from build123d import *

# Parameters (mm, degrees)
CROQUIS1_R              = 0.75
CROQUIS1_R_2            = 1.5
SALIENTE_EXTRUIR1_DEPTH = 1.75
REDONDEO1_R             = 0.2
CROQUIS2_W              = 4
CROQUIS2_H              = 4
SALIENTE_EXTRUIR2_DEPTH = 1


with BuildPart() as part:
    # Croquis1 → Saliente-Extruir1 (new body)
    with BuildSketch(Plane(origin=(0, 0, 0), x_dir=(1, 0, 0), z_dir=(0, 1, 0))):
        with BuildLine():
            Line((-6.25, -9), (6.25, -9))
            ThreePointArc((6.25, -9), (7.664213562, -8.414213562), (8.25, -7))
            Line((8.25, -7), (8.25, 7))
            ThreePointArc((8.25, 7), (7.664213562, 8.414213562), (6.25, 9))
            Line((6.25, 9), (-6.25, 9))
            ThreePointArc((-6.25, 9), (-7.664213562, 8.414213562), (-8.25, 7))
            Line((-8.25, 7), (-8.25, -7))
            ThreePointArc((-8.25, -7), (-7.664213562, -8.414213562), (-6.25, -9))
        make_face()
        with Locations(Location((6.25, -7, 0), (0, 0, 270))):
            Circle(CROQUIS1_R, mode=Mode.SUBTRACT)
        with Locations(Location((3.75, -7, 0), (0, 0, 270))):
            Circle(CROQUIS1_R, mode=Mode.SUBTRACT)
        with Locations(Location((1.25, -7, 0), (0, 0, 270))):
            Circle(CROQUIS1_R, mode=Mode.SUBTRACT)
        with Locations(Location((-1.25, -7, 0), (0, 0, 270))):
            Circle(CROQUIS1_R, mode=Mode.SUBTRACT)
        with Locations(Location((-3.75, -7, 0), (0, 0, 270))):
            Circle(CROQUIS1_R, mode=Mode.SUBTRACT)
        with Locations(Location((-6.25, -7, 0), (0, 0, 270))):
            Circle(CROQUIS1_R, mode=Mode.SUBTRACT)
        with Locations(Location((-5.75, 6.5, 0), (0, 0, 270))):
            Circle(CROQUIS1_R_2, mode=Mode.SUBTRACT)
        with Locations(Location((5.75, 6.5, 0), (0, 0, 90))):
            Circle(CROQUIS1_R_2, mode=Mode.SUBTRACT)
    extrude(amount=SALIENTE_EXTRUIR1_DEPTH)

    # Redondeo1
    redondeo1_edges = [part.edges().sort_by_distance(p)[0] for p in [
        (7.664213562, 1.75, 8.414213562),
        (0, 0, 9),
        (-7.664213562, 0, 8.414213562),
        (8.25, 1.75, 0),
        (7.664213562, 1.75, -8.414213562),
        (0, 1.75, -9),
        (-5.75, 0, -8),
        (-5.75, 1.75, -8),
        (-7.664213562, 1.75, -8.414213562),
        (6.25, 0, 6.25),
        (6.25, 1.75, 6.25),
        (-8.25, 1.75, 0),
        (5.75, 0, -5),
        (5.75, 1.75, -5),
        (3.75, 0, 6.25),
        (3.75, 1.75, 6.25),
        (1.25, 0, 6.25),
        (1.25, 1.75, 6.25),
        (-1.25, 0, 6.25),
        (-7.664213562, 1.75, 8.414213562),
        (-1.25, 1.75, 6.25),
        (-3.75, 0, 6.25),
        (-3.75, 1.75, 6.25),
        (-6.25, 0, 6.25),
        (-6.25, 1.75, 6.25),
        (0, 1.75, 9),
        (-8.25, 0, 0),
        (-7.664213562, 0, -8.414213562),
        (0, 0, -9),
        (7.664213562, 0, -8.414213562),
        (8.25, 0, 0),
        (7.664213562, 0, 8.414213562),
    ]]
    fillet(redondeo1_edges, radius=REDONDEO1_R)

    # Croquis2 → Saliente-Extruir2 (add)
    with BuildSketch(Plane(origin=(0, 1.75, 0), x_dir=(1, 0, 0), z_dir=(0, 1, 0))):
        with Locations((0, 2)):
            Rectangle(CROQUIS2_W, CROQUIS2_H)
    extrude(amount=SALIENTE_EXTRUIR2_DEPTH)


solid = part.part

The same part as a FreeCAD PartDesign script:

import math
import FreeCAD as App
import Part
import Sketcher
from FreeCAD import Vector


def edges_at(feature, points):
    """Names of the edges that pass closest to the given points."""
    edges = feature.Shape.Edges
    near = lambda p: min(range(len(edges)), key=lambda i: edges[i].distToShape(Part.Vertex(*p))[0])
    return sorted({f"Edge{near(p) + 1}" for p in points})


def add_polygon(sketch, points):
    """Adds a closed chain of lines whose ends are joined by coincident constraints."""
    first, n = sketch.GeometryCount, len(points)
    for a, b in zip(points, points[1:] + points[:1]):
        sketch.addGeometry(Part.LineSegment(App.Vector(*a, 0), App.Vector(*b, 0)), False)
    for i in range(n):
        sketch.addConstraint(Sketcher.Constraint("Coincident", first + i, 2, first + (i + 1) % n, 1))

doc = App.newDocument("Part")
params = doc.addObject("Spreadsheet::Sheet", "Params")
for row, (alias, value) in enumerate([
    ("sketch1_diameter", "3 mm"),
    ("sketch1_radius", "2 mm"),
    ("sketch1_diameter2", "1.5 mm"),
    ("sketch1_height", "14 mm"),
    ("sketch1_width", "12.5 mm"),
    ("pad1_length", "1.75 mm"),
    ("fillet_radius", "0.2 mm"),
    ("sketch2_width", "4 mm"),
    ("pad2_length", "1 mm"),
], start=1):
    params.set(f"A{row}", alias)
    params.set(f"B{row}", "=" + value)
    params.setAlias(f"B{row}", alias)

body = doc.addObject("PartDesign::Body", "Body")

# Sketch on XZ plane
sketch1 = doc.addObject("Sketcher::SketchObject", "Sketch")
body.addObject(sketch1)
sketch1.AttachmentSupport = (doc.XZ_Plane, [""])
sketch1.MapMode = "FlatFace"
sketch1.addGeometry([
    Part.LineSegment(Vector(-6.25, 9, 0), Vector(6.25, 9, 0)),  # 0
    Part.ArcOfCircle(Part.Circle(Vector(6.25, 7, 0), Vector(0, 0, 1), 2), math.radians(0), math.radians(90)),  # 1
    Part.LineSegment(Vector(8.25, 7, 0), Vector(8.25, -7, 0)),  # 2
    Part.ArcOfCircle(Part.Circle(Vector(6.25, -7, 0), Vector(0, 0, 1), 2), math.radians(-90), math.radians(0)),  # 3
    Part.LineSegment(Vector(6.25, -9, 0), Vector(-6.25, -9, 0)),  # 4
    Part.ArcOfCircle(Part.Circle(Vector(-6.25, -7, 0), Vector(0, 0, 1), 2), math.radians(-180), math.radians(-90)),  # 5
    Part.LineSegment(Vector(-8.25, -7, 0), Vector(-8.25, 7, 0)),  # 6
    Part.ArcOfCircle(Part.Circle(Vector(-6.25, 7, 0), Vector(0, 0, 1), 2), math.radians(90), math.radians(180)),  # 7
    Part.Circle(Vector(-6.25, 7, 0), Vector(0, 0, 1), 0.75),  # 8
    Part.Circle(Vector(-3.75, 7, 0), Vector(0, 0, 1), 0.75),  # 9
    Part.Circle(Vector(-1.25, 7, 0), Vector(0, 0, 1), 0.75),  # 10
    Part.Circle(Vector(1.25, 7, 0), Vector(0, 0, 1), 0.75),  # 11
    Part.Circle(Vector(3.75, 7, 0), Vector(0, 0, 1), 0.75),  # 12
    Part.Circle(Vector(6.25, 7, 0), Vector(0, 0, 1), 0.75),  # 13
    Part.Circle(Vector(-5.75, -6.5, 0), Vector(0, 0, 1), 1.5),  # 14
    Part.Circle(Vector(5.75, -6.5, 0), Vector(0, 0, 1), 1.5),  # 15
], False)
sketch1.addConstraint([
    Sketcher.Constraint("Tangent", 0, 2, 1, 2),
    Sketcher.Constraint("Tangent", 1, 1, 2, 1),
    Sketcher.Constraint("Tangent", 2, 2, 3, 2),
    Sketcher.Constraint("Tangent", 3, 1, 4, 1),
    Sketcher.Constraint("Tangent", 4, 2, 5, 2),
    Sketcher.Constraint("Tangent", 5, 1, 6, 1),
    Sketcher.Constraint("Tangent", 6, 2, 7, 2),
    Sketcher.Constraint("Tangent", 7, 1, 0, 1),
    Sketcher.Constraint("Horizontal", 0),
    Sketcher.Constraint("Vertical", 2),
    Sketcher.Constraint("Horizontal", 4),
    Sketcher.Constraint("Vertical", 6),
    Sketcher.Constraint("Coincident", 8, 3, 7, 3),
    Sketcher.Constraint("Coincident", 13, 3, 1, 3),
    Sketcher.Constraint("Equal", 1, 3),
    Sketcher.Constraint("Equal", 3, 5),
    Sketcher.Constraint("Equal", 5, 7),
    Sketcher.Constraint("Equal", 8, 9),
    Sketcher.Constraint("Equal", 9, 10),
    Sketcher.Constraint("Equal", 10, 11),
    Sketcher.Constraint("Equal", 11, 12),
    Sketcher.Constraint("Equal", 12, 13),
    Sketcher.Constraint("Equal", 14, 15),
    Sketcher.Constraint("Symmetric", 1, 3, 5, 3, -1, 1),
    Sketcher.Constraint("Symmetric", 10, 3, 11, 3, -2),
    Sketcher.Constraint("Symmetric", 9, 3, 12, 3, -2),
    Sketcher.Constraint("Symmetric", 14, 3, 15, 3, -2),
    Sketcher.Constraint("Horizontal", 8, 3, 9, 3),
    Sketcher.Constraint("Horizontal", 9, 3, 10, 3),
    Sketcher.Constraint("Diameter", 14, 3.0),
    Sketcher.Constraint("Radius", 1, 2.0),
    Sketcher.Constraint("Diameter", 8, 1.5),
    Sketcher.Constraint("DistanceY", 2, 2, 2, 1, 14.0),
    Sketcher.Constraint("DistanceX", 0, 1, 0, 2, 12.5),
    Sketcher.Constraint("DistanceX", 9, 3, 1, 3, 10.0),
    Sketcher.Constraint("DistanceX", 7, 3, 10, 3, 5.0),
    Sketcher.Constraint("DistanceX", 14, 3, 3, 3, 12.0),
    Sketcher.Constraint("DistanceY", 14, 3, -1, 1, 6.5),
])
sketch1.setExpression("Constraints[29]", "Params.sketch1_diameter")
sketch1.setExpression("Constraints[30]", "Params.sketch1_radius")
sketch1.setExpression("Constraints[31]", "Params.sketch1_diameter2")
sketch1.setExpression("Constraints[32]", "Params.sketch1_height")
sketch1.setExpression("Constraints[33]", "Params.sketch1_width")
pad1 = doc.addObject("PartDesign::Pad", "Pad")
body.addObject(pad1)
pad1.Profile = sketch1
pad1.setExpression("Length", "Params.pad1_length")
pad1.Reversed = True
doc.recompute()

fillet = doc.addObject("PartDesign::Fillet", "Fillet")
body.addObject(fillet)
fillet.Base = (pad1, edges_at(pad1, [
    (7.664, 1.75, 8.414),
    (0, 0, 9),
    (-7.664, 0, 8.414),
    (8.25, 1.75, 0),
    (7.664, 1.75, -8.414),
    (0, 1.75, -9),
    (-5.75, 0, -8),
    (-5.75, 1.75, -8),
    (-7.664, 1.75, -8.414),
    (6.25, 0, 6.25),
    (6.25, 1.75, 6.25),
    (-8.25, 1.75, 0),
    (5.75, 0, -5),
    (5.75, 1.75, -5),
    (3.75, 0, 6.25),
    (3.75, 1.75, 6.25),
    (1.25, 0, 6.25),
    (1.25, 1.75, 6.25),
    (-1.25, 0, 6.25),
    (-7.664, 1.75, 8.414),
    (-1.25, 1.75, 6.25),
    (-3.75, 0, 6.25),
    (-3.75, 1.75, 6.25),
    (-6.25, 0, 6.25),
    (-6.25, 1.75, 6.25),
    (0, 1.75, 9),
    (-8.25, 0, 0),
    (-7.664, 0, -8.414),
    (0, 0, -9),
    (7.664, 0, -8.414),
    (8.25, 0, 0),
    (7.664, 0, 8.414),
]))
fillet.setExpression("Radius", "Params.fillet_radius")

# Sketch on XZ plane
sketch2 = doc.addObject("Sketcher::SketchObject", "Sketch001")
body.addObject(sketch2)
sketch2.AttachmentSupport = (doc.XZ_Plane, [""])
sketch2.MapMode = "FlatFace"
sketch2.AttachmentOffset = App.Placement(Vector(0, 0, -1.75), App.Rotation())
add_polygon(sketch2, [(-2, -4), (-2, 0), (2, 0), (2, -4)])  # lines 0-3
sketch2.addConstraint([
    Sketcher.Constraint("Vertical", 0),
    Sketcher.Constraint("Horizontal", 1),
    Sketcher.Constraint("Vertical", 2),
    Sketcher.Constraint("Horizontal", 3),
    Sketcher.Constraint("Symmetric", 0, 2, 1, 2, -1, 1),
    Sketcher.Constraint("Equal", 3, 0),
    Sketcher.Constraint("DistanceX", 1, 1, 1, 2, 4.0),
])
sketch2.setExpression("Constraints[10]", "Params.sketch2_width")
pad2 = doc.addObject("PartDesign::Pad", "Pad001")
body.addObject(pad2)
pad2.Profile = sketch2
pad2.setExpression("Length", "Params.pad2_length")
pad2.Reversed = True

doc.recompute()
